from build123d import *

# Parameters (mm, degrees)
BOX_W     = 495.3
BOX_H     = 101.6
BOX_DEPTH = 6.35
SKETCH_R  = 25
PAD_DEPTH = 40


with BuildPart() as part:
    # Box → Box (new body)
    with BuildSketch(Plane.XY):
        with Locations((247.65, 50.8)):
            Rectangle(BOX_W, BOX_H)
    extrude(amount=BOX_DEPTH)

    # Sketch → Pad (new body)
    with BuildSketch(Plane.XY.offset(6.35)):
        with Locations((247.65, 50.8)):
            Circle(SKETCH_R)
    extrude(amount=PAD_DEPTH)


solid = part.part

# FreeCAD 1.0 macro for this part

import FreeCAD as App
import Part
import Sketcher

V = App.Vector
Q = App.Units.Quantity

doc = App.newDocument("Part")
body = doc.addObject("PartDesign::Body", "Body")

# Sketch on XY plane
sketch1 = body.newObject("Sketcher::SketchObject", "Sketch")
sketch1.AttachmentSupport = (doc.getObject("XY_Plane"), [""])
sketch1.MapMode = "FlatFace"
sketch1.addGeometry([
    Part.LineSegment(V(0, 101.6, 0), V(0, 0, 0)),
    Part.LineSegment(V(0, 0, 0), V(495.3, 0, 0)),
    Part.LineSegment(V(495.3, 0, 0), V(495.3, 101.6, 0)),
    Part.LineSegment(V(495.3, 101.6, 0), V(0, 101.6, 0)),
], False)
sketch1.addConstraint([
    Sketcher.Constraint("Coincident", 0, 2, 1, 1),
    Sketcher.Constraint("Coincident", 1, 2, 2, 1),
    Sketcher.Constraint("Coincident", 2, 2, 3, 1),
    Sketcher.Constraint("Coincident", 3, 2, 0, 1),
    Sketcher.Constraint("Vertical", 0),
    Sketcher.Constraint("Horizontal", 1),
    Sketcher.Constraint("Vertical", 2),
    Sketcher.Constraint("Horizontal", 3),
    Sketcher.Constraint("Coincident", 0, 2, -1, 1),
    Sketcher.Constraint("DistanceY", 0, 2, 0, 1, Q("4 in")),
    Sketcher.Constraint("DistanceX", 1, 1, 1, 2, Q("19.5 in")),
])
pad1 = body.newObject("PartDesign::Pad", "Pad")
pad1.Profile = sketch1
pad1.Length = Q("0.25 in")

# Sketch on XY plane
sketch2 = body.newObject("Sketcher::SketchObject", "Sketch001")
sketch2.AttachmentSupport = (doc.getObject("XY_Plane"), [""])
sketch2.MapMode = "FlatFace"
sketch2.AttachmentOffset = App.Placement(V(0, 0, 0.25 * 25.4), App.Rotation())
sketch2.addGeometry(Part.Circle(V(247.65, 50.8, 0), V(0, 0, 1), 25), False)
sketch2.addConstraint([
    Sketcher.Constraint("DistanceY", -1, 1, 0, 3, Q("2 in")),
    Sketcher.Constraint("Diameter", 0, 50.0),
    Sketcher.Constraint("DistanceX", -1, 1, 0, 3, Q("9.75 in")),
])
pad2 = body.newObject("PartDesign::Pad", "Pad001")
pad2.Profile = sketch2
pad2.Length = 40

doc.recompute()
